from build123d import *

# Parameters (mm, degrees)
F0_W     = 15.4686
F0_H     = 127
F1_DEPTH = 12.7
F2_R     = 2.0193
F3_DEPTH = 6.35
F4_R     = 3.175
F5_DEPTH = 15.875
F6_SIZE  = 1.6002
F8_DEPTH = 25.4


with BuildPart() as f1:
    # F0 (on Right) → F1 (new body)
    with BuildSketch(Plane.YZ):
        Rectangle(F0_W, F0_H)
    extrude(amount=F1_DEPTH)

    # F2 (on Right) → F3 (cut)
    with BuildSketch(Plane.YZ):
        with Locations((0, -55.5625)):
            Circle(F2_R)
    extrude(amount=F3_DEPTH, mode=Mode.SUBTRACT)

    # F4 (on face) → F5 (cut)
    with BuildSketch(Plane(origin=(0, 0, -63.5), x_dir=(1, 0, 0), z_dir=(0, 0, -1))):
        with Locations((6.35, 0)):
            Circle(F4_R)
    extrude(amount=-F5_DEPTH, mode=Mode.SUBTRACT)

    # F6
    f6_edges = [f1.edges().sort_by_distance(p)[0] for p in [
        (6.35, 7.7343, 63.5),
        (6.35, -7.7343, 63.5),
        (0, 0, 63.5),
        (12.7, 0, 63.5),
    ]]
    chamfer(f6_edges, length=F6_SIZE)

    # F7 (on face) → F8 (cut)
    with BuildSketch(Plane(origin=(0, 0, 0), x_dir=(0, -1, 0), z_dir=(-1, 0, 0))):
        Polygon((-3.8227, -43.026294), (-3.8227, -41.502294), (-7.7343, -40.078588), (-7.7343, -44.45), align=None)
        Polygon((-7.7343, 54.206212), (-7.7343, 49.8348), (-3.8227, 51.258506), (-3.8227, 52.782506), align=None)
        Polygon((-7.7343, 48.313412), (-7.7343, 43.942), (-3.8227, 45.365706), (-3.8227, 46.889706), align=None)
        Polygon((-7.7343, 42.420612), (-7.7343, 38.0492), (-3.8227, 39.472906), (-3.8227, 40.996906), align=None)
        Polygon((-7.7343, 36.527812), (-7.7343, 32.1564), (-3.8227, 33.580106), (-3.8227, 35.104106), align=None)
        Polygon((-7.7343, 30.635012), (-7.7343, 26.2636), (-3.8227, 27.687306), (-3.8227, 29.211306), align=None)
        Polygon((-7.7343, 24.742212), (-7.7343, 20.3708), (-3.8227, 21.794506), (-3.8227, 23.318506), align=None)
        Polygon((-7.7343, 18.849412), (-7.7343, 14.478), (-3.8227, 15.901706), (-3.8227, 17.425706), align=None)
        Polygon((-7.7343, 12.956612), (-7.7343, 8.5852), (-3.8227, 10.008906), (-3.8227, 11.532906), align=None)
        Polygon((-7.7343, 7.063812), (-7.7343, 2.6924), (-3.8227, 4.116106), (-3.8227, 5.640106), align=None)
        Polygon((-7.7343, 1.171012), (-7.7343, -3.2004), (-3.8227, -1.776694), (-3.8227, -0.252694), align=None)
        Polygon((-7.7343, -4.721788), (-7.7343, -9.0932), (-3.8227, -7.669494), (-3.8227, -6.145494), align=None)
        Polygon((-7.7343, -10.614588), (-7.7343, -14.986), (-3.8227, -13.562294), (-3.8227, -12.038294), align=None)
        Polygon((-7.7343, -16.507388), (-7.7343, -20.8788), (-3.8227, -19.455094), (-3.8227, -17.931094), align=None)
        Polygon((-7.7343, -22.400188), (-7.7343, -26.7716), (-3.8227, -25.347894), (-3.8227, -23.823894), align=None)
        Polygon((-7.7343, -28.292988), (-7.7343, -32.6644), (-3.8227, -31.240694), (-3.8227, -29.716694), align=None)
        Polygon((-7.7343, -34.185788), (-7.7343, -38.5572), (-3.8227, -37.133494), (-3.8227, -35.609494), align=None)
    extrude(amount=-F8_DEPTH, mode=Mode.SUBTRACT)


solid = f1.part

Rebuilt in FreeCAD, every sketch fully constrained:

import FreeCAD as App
import Part
import Sketcher
from FreeCAD import Vector
Q = App.Units.Quantity


def edges_at(feature, points):
    """Names of the edges that pass closest to the given points."""
    edges = feature.Shape.Edges
    near = lambda p: min(range(len(edges)), key=lambda i: edges[i].distToShape(Part.Vertex(*p))[0])
    return sorted({f"Edge{near(p) + 1}" for p in points})


def add_polygon(sketch, points):
    """Adds a closed chain of lines whose ends are joined by coincident constraints."""
    first, n = sketch.GeometryCount, len(points)
    for a, b in zip(points, points[1:] + points[:1]):
        sketch.addGeometry(Part.LineSegment(App.Vector(*a, 0), App.Vector(*b, 0)), False)
    for i in range(n):
        sketch.addConstraint(Sketcher.Constraint("Coincident", first + i, 2, first + (i + 1) % n, 1))

doc = App.newDocument("Part")
body = doc.addObject("PartDesign::Body", "Body")

# Sketch on YZ plane
sketch1 = body.newObject("Sketcher::SketchObject", "Sketch")
sketch1.AttachmentSupport = (doc.getObject("YZ_Plane"), [""])
sketch1.MapMode = "FlatFace"
add_polygon(sketch1, [(-8, 64), (-8, -64), (8, -64), (8, 64)])  # lines 0-3
sketch1.addConstraint([
    Sketcher.Constraint("Vertical", 0),
    Sketcher.Constraint("Horizontal", 1),
    Sketcher.Constraint("Vertical", 2),
    Sketcher.Constraint("Horizontal", 3),
    Sketcher.Constraint("Symmetric", 0, 2, 2, 2, -1, 1),
    Sketcher.Constraint("DistanceY", 0, 2, 0, 1, Q("5 in")),
    Sketcher.Constraint("DistanceX", 1, 1, 1, 2, Q("0.609 in")),
])
pad1 = body.newObject("PartDesign::Pad", "Pad")
pad1.Profile = sketch1
pad1.Length = Q("0.5 in")

# Sketch on YZ plane
sketch2 = body.newObject("Sketcher::SketchObject", "Sketch001")
sketch2.AttachmentSupport = (doc.getObject("YZ_Plane"), [""])
sketch2.MapMode = "FlatFace"
sketch2.addGeometry(Part.Circle(Vector(0, -55.6, 0), Vector(0, 0, 1), 2), False)
sketch2.addConstraint([
    Sketcher.Constraint("PointOnObject", 0, 3, -2),
    Sketcher.Constraint("Diameter", 0, Q("0.159 in")),
    Sketcher.Constraint("DistanceY", 0, 3, -1, 1, Q("2.1875 in")),
])
pocket1 = body.newObject("PartDesign::Pocket", "Pocket")
pocket1.Profile = sketch2
pocket1.Length = Q("0.25 in")
pocket1.Reversed = True

# Sketch on XY plane
sketch3 = body.newObject("Sketcher::SketchObject", "Sketch002")
sketch3.AttachmentSupport = (doc.getObject("XY_Plane"), [""])
sketch3.MapMode = "FlatFace"
sketch3.AttachmentOffset = App.Placement(Vector(0, 0, -2.5 * 25.4), App.Rotation())
sketch3.addGeometry(Part.Circle(Vector(6.3, 0, 0), Vector(0, 0, 1), 3.2), False)
sketch3.addConstraint([
    Sketcher.Constraint("PointOnObject", 0, 3, -1),
    Sketcher.Constraint("Diameter", 0, Q("0.25 in")),
    Sketcher.Constraint("DistanceX", -1, 1, 0, 3, Q("0.25 in")),
])
pocket2 = body.newObject("PartDesign::Pocket", "Pocket001")
pocket2.Profile = sketch3
pocket2.Length = Q("0.625 in")
pocket2.Reversed = True
doc.recompute()

chamfer = body.newObject("PartDesign::Chamfer", "Chamfer")
chamfer.Base = (pocket2, edges_at(pocket2, [
    (6.35, 7.734, 63.5),
    (6.35, -7.734, 63.5),
    (0, 0, 63.5),
    (12.7, 0, 63.5),
]))
chamfer.Size = Q("0.063 in")

# Sketch on YZ plane
sketch4 = body.newObject("Sketcher::SketchObject", "Sketch003")
sketch4.AttachmentSupport = (doc.getObject("YZ_Plane"), [""])
sketch4.MapMode = "FlatFace"
add_polygon(sketch4, [(3.8, -43), (3.8, -41.5), (7.7, -40.1), (7.7, -44.5)])  # lines 0-3
add_polygon(sketch4, [(7.7, 54.2), (7.7, 49.8), (3.8, 51.3), (3.8, 52.8)])  # lines 4-7
add_polygon(sketch4, [(7.7, 48.3), (7.7, 43.9), (3.8, 45.4), (3.8, 46.9)])  # lines 8-11
add_polygon(sketch4, [(7.7, 42.4), (7.7, 38), (3.8, 39.5), (3.8, 41)])  # lines 12-15
add_polygon(sketch4, [(7.7, 36.5), (7.7, 32.2), (3.8, 33.6), (3.8, 35.1)])  # lines 16-19
add_polygon(sketch4, [(7.7, 30.6), (7.7, 26.3), (3.8, 27.7), (3.8, 29.2)])  # lines 20-23
add_polygon(sketch4, [(7.7, 24.7), (7.7, 20.4), (3.8, 21.8), (3.8, 23.3)])  # lines 24-27
add_polygon(sketch4, [(7.7, 18.8), (7.7, 14.5), (3.8, 15.9), (3.8, 17.4)])  # lines 28-31
add_polygon(sketch4, [(7.7, 13), (7.7, 8.6), (3.8, 10), (3.8, 11.5)])  # lines 32-35
add_polygon(sketch4, [(7.7, 7.1), (7.7, 2.7), (3.8, 4.1), (3.8, 5.6)])  # lines 36-39
add_polygon(sketch4, [(7.7, 1.2), (7.7, -3.2), (3.8, -1.8), (3.8, -0.3)])  # lines 40-43
add_polygon(sketch4, [(7.7, -4.7), (7.7, -9.1), (3.8, -7.7), (3.8, -6.1)])  # lines 44-47
add_polygon(sketch4, [(7.7, -10.6), (7.7, -15), (3.8, -13.6), (3.8, -12)])  # lines 48-51
add_polygon(sketch4, [(7.7, -16.5), (7.7, -20.9), (3.8, -19.5), (3.8, -17.9)])  # lines 52-55
add_polygon(sketch4, [(7.7, -22.4), (7.7, -26.8), (3.8, -25.3), (3.8, -23.8)])  # lines 56-59
add_polygon(sketch4, [(7.7, -28.3), (7.7, -32.7), (3.8, -31.2), (3.8, -29.7)])  # lines 60-63
add_polygon(sketch4, [(7.7, -34.2), (7.7, -38.6), (3.8, -37.1), (3.8, -35.6)])  # lines 64-67
sketch4.addConstraint([
    Sketcher.Constraint("Vertical", 0),
    Sketcher.Constraint("Vertical", 2),
    Sketcher.Constraint("Vertical", 4),
    Sketcher.Constraint("Vertical", 6),
    Sketcher.Constraint("Vertical", 8),
    Sketcher.Constraint("Vertical", 10),
    Sketcher.Constraint("Vertical", 12),
    Sketcher.Constraint("Vertical", 14),
    Sketcher.Constraint("Vertical", 16),
    Sketcher.Constraint("Vertical", 18),
    Sketcher.Constraint("Vertical", 20),
    Sketcher.Constraint("Vertical", 22),
    Sketcher.Constraint("Vertical", 24),
    Sketcher.Constraint("Vertical", 26),
    Sketcher.Constraint("Vertical", 28),
    Sketcher.Constraint("Vertical", 30),
    Sketcher.Constraint("Vertical", 32),
    Sketcher.Constraint("Vertical", 34),
    Sketcher.Constraint("Vertical", 36),
    Sketcher.Constraint("Vertical", 38),
    Sketcher.Constraint("Vertical", 40),
    Sketcher.Constraint("Vertical", 42),
    Sketcher.Constraint("Vertical", 44),
    Sketcher.Constraint("Vertical", 46),
    Sketcher.Constraint("Vertical", 48),
    Sketcher.Constraint("Vertical", 50),
    Sketcher.Constraint("Vertical", 52),
    Sketcher.Constraint("Vertical", 54),
    Sketcher.Constraint("Vertical", 56),
    Sketcher.Constraint("Vertical", 58),
    Sketcher.Constraint("Vertical", 60),
    Sketcher.Constraint("Vertical", 62),
    Sketcher.Constraint("Vertical", 64),
    Sketcher.Constraint("Vertical", 66),
    Sketcher.Constraint("Parallel", 3, 5),
    Sketcher.Constraint("Parallel", 1, 7),
    Sketcher.Constraint("Parallel", 5, 9),
    Sketcher.Constraint("Parallel", 7, 11),
    Sketcher.Constraint("Parallel", 9, 13),
    Sketcher.Constraint("Parallel", 11, 15),
    Sketcher.Constraint("Parallel", 13, 17),
    Sketcher.Constraint("Parallel", 15, 19),
    Sketcher.Constraint("Parallel", 17, 21),
    Sketcher.Constraint("Parallel", 19, 23),
    Sketcher.Constraint("Parallel", 21, 25),
    Sketcher.Constraint("Parallel", 23, 27),
    Sketcher.Constraint("Parallel", 25, 29),
    Sketcher.Constraint("Parallel", 27, 31),
    Sketcher.Constraint("Parallel", 29, 33),
    Sketcher.Constraint("Parallel", 31, 35),
    Sketcher.Constraint("Parallel", 33, 37),
    Sketcher.Constraint("Parallel", 35, 39),
    Sketcher.Constraint("Parallel", 37, 41),
    Sketcher.Constraint("Parallel", 39, 43),
    Sketcher.Constraint("Parallel", 41, 45),
    Sketcher.Constraint("Parallel", 43, 47),
    Sketcher.Constraint("Parallel", 45, 49),
    Sketcher.Constraint("Parallel", 47, 51),
    Sketcher.Constraint("Parallel", 49, 53),
    Sketcher.Constraint("Parallel", 51, 55),
    Sketcher.Constraint("Parallel", 53, 57),
    Sketcher.Constraint("Parallel", 55, 59),
    Sketcher.Constraint("Parallel", 57, 61),
    Sketcher.Constraint("Parallel", 59, 63),
    Sketcher.Constraint("Parallel", 61, 65),
    Sketcher.Constraint("Parallel", 63, 67),
    Sketcher.Constraint("Vertical", 2, 2, 4, 2),
    Sketcher.Constraint("Vertical", 3, 2, 5, 2),
    Sketcher.Constraint("Vertical", 7, 2, 8, 2),
    Sketcher.Constraint("Vertical", 6, 2, 9, 2),
    Sketcher.Constraint("Vertical", 11, 2, 12, 2),
    Sketcher.Constraint("Vertical", 10, 2, 13, 2),
    Sketcher.Constraint("Vertical", 15, 2, 16, 2),
    Sketcher.Constraint("Vertical", 14, 2, 17, 2),
    Sketcher.Constraint("Vertical", 19, 2, 20, 2),
    Sketcher.Constraint("Vertical", 18, 2, 21, 2),
    Sketcher.Constraint("Vertical", 23, 2, 24, 2),
    Sketcher.Constraint("Vertical", 22, 2, 25, 2),
    Sketcher.Constraint("Vertical", 27, 2, 28, 2),
    Sketcher.Constraint("Vertical", 26, 2, 29, 2),
    Sketcher.Constraint("Vertical", 31, 2, 32, 2),
    Sketcher.Constraint("Vertical", 30, 2, 33, 2),
    Sketcher.Constraint("Vertical", 35, 2, 36, 2),
    Sketcher.Constraint("Vertical", 34, 2, 37, 2),
    Sketcher.Constraint("Vertical", 39, 2, 40, 2),
    Sketcher.Constraint("Vertical", 38, 2, 41, 2),
    Sketcher.Constraint("Vertical", 43, 2, 44, 2),
    Sketcher.Constraint("Vertical", 42, 2, 45, 2),
    Sketcher.Constraint("Vertical", 47, 2, 48, 2),
    Sketcher.Constraint("Vertical", 46, 2, 49, 2),
    Sketcher.Constraint("Vertical", 51, 2, 52, 2),
    Sketcher.Constraint("Vertical", 50, 2, 53, 2),
    Sketcher.Constraint("Vertical", 55, 2, 56, 2),
    Sketcher.Constraint("Vertical", 54, 2, 57, 2),
    Sketcher.Constraint("Vertical", 59, 2, 60, 2),
    Sketcher.Constraint("Vertical", 58, 2, 61, 2),
    Sketcher.Constraint("Vertical", 63, 2, 64, 2),
    Sketcher.Constraint("Vertical", 62, 2, 65, 2),
    Sketcher.Constraint("Equal", 2, 4),
    Sketcher.Constraint("Equal", 4, 8),
    Sketcher.Constraint("Equal", 8, 12),
    Sketcher.Constraint("Equal", 12, 16),
    Sketcher.Constraint("Equal", 16, 20),
    Sketcher.Constraint("Equal", 20, 24),
    Sketcher.Constraint("Equal", 24, 28),
    Sketcher.Constraint("Equal", 28, 32),
    Sketcher.Constraint("Equal", 32, 36),
    Sketcher.Constraint("Equal", 36, 40),
    Sketcher.Constraint("Equal", 40, 44),
    Sketcher.Constraint("Equal", 44, 48),
    Sketcher.Constraint("Equal", 48, 52),
    Sketcher.Constraint("Equal", 52, 56),
    Sketcher.Constraint("Equal", 56, 60),
    Sketcher.Constraint("Equal", 60, 64),
    Sketcher.Constraint("Equal", 1, 3),
    Sketcher.Constraint("Angle", 1, Q("20 deg")),
    Sketcher.Constraint("DistanceY", 0, 1, 0, 2, Q("0.06 in")),
    Sketcher.Constraint("DistanceY", 2, 2, -1, 1, Q("1.75 in")),
    Sketcher.Constraint("DistanceY", -1, 1, 8, 2, Q("1.73 in")),
    Sketcher.Constraint("DistanceY", -1, 1, 28, 2, Q("0.57 in")),
    Sketcher.Constraint("DistanceY", 48, 2, -1, 1, Q("0.59 in")),
    Sketcher.Constraint("DistanceY", -1, 1, 4, 2, Q("1.962 in")),
    Sketcher.Constraint("DistanceY", -1, 1, 12, 2, Q("1.498 in")),
    Sketcher.Constraint("DistanceY", -1, 1, 16, 2, Q("1.266 in")),
    Sketcher.Constraint("DistanceY", -1, 1, 20, 2, Q("1.034 in")),
    Sketcher.Constraint("DistanceY", -1, 1, 24, 2, Q("0.802 in")),
    Sketcher.Constraint("DistanceY", -1, 1, 32, 2, Q("0.338 in")),
    Sketcher.Constraint("DistanceY", -1, 1, 36, 2, Q("0.106 in")),
    Sketcher.Constraint("DistanceY", 40, 2, -1, 1, Q("0.126 in")),
    Sketcher.Constraint("DistanceY", 44, 2, -1, 1, Q("0.358 in")),
    Sketcher.Constraint("DistanceY", 52, 2, -1, 1, Q("0.822 in")),
    Sketcher.Constraint("DistanceY", 56, 2, -1, 1, Q("1.054 in")),
    Sketcher.Constraint("DistanceY", 60, 2, -1, 1, Q("1.286 in")),
    Sketcher.Constraint("DistanceY", 64, 2, -1, 1, Q("1.518 in")),
    Sketcher.Constraint("DistanceX", -1, 1, 0, 2, Q("0.1505 in")),
    Sketcher.Constraint("DistanceX", -1, 1, 1, 2, Q("0.3045 in")),
])
pocket3 = body.newObject("PartDesign::Pocket", "Pocket002")
pocket3.Profile = sketch4
pocket3.Length = Q("1 in")
pocket3.Reversed = True

doc.recompute()
